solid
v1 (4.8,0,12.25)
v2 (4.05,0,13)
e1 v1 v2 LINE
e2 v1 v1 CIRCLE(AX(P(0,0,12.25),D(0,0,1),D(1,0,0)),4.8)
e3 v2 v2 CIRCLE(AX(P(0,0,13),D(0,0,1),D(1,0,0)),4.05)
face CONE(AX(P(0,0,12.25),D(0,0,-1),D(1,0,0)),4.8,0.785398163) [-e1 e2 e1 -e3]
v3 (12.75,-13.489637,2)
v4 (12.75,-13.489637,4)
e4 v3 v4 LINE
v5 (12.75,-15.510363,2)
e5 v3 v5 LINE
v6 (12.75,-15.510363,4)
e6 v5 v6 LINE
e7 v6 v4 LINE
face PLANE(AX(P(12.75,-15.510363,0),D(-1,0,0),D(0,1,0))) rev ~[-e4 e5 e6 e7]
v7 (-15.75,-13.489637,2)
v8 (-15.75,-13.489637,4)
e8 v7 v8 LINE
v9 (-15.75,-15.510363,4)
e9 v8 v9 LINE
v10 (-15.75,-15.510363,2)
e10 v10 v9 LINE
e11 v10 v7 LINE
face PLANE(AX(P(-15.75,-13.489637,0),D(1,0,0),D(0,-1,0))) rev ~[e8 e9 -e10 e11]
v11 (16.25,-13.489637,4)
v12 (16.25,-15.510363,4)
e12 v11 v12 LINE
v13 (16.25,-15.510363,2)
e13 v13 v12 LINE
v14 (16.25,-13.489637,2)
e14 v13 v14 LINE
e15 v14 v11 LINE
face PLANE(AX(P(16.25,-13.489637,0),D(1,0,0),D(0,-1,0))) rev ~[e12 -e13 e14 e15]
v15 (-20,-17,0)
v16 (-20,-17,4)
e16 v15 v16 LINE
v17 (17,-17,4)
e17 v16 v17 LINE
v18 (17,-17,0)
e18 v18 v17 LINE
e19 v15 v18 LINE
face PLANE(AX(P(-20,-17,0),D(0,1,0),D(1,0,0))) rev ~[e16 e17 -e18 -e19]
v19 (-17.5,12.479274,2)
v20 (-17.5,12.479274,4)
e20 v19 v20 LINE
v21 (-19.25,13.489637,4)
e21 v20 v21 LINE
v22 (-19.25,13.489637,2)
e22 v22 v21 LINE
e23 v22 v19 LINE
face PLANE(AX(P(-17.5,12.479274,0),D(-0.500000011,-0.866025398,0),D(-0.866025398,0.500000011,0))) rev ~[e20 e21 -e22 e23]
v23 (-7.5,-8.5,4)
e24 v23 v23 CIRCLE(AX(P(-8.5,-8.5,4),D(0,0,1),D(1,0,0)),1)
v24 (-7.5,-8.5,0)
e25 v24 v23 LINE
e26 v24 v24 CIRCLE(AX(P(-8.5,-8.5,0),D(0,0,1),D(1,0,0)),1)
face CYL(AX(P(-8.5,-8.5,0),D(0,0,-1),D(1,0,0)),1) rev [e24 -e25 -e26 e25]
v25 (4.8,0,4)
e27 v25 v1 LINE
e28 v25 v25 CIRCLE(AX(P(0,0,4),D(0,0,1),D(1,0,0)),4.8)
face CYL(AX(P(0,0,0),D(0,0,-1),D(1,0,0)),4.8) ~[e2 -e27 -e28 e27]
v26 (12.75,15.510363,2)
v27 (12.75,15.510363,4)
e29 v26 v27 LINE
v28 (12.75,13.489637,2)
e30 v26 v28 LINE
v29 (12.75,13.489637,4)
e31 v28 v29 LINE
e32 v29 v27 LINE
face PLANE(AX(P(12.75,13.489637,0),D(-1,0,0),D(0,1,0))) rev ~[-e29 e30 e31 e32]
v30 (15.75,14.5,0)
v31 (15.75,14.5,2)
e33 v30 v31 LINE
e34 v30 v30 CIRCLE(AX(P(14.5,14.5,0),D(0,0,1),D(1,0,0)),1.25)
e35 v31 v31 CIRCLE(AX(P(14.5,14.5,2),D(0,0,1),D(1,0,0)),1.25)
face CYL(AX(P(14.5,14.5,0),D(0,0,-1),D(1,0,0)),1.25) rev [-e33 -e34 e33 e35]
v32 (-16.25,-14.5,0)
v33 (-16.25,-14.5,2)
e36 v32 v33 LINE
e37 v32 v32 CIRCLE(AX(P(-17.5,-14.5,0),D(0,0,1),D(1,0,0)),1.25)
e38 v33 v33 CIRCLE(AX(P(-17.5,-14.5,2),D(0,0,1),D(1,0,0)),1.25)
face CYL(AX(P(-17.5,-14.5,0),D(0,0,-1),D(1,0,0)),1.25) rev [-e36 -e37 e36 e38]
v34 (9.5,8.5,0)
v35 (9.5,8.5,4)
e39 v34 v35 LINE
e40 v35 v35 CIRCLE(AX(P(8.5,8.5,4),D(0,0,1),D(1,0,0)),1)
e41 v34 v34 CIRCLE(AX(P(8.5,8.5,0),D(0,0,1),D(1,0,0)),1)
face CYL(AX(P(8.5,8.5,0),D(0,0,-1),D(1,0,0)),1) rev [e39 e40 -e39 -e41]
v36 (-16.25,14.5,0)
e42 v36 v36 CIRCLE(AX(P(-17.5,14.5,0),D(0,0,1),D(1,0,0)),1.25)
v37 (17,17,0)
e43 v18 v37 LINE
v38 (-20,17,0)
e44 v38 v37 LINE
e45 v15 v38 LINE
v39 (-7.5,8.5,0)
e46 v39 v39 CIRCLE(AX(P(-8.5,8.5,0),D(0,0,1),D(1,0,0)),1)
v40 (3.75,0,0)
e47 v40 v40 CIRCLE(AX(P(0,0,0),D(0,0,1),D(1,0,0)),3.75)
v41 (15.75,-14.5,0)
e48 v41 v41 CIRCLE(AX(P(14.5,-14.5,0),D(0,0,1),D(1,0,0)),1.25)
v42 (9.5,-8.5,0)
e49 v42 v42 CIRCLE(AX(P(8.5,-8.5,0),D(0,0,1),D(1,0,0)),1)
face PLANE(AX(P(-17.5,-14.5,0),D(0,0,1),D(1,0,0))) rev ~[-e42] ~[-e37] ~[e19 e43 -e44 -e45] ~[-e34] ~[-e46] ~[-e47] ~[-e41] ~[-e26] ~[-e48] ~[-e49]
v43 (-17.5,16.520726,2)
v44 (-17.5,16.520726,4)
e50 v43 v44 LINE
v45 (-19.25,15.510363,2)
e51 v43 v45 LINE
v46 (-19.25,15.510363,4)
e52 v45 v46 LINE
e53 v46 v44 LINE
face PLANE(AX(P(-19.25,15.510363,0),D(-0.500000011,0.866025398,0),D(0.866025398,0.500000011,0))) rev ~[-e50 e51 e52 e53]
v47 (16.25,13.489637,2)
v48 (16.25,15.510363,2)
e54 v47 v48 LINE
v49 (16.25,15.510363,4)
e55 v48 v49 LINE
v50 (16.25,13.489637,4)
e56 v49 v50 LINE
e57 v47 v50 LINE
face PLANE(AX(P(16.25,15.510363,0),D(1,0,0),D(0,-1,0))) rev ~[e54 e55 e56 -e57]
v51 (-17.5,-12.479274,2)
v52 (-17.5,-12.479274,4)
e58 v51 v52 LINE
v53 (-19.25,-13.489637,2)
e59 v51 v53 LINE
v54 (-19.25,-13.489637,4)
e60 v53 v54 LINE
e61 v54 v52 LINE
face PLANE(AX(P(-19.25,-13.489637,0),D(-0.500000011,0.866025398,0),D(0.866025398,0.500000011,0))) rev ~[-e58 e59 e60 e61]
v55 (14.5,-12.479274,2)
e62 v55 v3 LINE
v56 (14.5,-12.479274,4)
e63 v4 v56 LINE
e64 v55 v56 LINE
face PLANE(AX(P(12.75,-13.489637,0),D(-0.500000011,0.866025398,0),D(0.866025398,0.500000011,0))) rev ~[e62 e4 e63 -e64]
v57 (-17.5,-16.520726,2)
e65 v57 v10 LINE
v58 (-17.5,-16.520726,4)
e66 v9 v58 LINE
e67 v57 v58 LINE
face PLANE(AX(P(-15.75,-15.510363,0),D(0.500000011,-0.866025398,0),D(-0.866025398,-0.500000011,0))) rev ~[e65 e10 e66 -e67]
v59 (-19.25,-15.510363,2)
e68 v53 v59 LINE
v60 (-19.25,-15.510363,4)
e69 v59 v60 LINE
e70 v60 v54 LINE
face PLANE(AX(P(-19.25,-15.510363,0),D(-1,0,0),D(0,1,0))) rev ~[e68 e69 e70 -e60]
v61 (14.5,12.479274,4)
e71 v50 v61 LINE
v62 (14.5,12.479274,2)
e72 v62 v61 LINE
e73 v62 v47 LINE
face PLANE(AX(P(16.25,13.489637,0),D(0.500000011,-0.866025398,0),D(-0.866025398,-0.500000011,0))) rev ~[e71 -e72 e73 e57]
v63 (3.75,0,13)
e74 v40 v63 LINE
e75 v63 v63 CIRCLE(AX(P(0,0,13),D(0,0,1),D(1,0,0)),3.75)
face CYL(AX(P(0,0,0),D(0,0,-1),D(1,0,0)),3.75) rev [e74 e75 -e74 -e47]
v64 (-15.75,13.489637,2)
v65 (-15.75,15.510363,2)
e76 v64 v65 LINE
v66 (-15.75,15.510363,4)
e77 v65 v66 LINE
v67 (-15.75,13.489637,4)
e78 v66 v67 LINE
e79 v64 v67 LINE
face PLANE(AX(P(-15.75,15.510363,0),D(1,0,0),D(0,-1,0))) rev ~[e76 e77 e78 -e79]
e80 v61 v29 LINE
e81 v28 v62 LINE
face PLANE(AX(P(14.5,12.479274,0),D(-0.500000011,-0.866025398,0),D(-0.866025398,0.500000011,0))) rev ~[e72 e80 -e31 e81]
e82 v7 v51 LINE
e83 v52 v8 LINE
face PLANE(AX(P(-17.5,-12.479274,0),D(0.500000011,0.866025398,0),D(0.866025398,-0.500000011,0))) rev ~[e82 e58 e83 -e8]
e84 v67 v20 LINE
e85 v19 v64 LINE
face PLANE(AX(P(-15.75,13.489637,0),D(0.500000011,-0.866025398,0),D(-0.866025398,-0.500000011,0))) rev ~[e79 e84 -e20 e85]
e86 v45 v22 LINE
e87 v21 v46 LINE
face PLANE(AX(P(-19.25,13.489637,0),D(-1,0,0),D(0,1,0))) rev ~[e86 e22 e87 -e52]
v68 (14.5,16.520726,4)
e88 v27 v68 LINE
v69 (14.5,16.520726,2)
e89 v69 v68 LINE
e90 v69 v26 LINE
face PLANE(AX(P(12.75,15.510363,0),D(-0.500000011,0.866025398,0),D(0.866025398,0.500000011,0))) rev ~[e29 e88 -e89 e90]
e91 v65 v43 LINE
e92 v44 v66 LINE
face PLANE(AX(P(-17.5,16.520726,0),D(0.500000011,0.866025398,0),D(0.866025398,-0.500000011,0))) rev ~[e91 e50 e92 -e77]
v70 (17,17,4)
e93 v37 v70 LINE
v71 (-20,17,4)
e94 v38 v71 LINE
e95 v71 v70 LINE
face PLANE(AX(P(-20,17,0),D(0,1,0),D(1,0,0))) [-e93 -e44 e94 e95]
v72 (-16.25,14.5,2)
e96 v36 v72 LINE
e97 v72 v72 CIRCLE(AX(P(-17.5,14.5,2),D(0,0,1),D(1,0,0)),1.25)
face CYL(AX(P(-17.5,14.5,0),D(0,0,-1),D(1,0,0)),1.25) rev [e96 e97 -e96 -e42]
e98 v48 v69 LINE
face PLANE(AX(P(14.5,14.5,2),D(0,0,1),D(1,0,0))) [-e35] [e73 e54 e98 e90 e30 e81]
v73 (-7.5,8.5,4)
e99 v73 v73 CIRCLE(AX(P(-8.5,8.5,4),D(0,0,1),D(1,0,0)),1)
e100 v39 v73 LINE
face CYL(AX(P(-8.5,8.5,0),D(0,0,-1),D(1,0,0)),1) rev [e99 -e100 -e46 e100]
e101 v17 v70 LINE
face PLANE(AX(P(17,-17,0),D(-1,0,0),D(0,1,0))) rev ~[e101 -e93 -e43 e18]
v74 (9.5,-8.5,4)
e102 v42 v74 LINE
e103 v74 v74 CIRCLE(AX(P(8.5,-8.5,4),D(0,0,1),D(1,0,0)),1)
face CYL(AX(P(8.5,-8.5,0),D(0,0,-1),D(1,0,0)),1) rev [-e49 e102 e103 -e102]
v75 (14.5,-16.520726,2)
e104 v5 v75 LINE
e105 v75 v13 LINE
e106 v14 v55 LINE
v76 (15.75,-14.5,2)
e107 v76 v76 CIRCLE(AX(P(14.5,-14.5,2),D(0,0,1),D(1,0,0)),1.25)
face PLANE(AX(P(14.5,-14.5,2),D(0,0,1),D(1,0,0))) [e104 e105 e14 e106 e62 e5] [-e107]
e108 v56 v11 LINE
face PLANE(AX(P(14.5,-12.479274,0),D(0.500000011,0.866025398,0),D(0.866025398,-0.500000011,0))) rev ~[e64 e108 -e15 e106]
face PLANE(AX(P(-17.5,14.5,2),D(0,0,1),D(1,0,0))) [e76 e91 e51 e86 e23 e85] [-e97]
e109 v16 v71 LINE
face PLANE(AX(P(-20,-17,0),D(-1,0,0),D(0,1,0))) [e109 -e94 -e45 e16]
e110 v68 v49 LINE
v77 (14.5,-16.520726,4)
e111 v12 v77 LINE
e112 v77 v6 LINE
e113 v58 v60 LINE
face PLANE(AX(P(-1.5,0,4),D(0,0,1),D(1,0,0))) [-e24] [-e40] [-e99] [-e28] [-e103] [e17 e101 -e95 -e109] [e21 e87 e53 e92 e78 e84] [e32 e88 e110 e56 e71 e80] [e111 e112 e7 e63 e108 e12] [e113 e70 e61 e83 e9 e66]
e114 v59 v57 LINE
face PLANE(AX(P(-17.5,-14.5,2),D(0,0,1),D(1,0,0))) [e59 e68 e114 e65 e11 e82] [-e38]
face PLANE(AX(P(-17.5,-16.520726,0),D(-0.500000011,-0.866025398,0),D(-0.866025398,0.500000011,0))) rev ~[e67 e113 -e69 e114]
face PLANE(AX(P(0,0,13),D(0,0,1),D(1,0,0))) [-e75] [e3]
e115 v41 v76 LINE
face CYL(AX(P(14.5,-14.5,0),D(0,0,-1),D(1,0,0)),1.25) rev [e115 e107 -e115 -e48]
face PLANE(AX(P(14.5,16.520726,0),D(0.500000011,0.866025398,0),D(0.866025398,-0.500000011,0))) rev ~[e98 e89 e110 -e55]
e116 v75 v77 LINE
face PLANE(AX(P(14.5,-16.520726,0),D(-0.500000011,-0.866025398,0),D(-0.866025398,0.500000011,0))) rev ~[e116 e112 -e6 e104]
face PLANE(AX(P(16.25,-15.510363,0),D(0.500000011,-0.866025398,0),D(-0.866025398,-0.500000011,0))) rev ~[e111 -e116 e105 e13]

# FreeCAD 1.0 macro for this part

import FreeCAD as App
import Part
import Sketcher
Q = App.Units.Quantity


def edges_at(feature, points):
    """Names of the edges that pass closest to the given points."""
    edges = feature.Shape.Edges
    near = lambda p: min(range(len(edges)), key=lambda i: edges[i].distToShape(Part.Vertex(*p))[0])
    return sorted({f"Edge{near(p) + 1}" for p in points})


def add_polygon(sketch, points):
    """Adds a closed chain of lines whose ends are joined by coincident constraints."""
    first, n = sketch.GeometryCount, len(points)
    for a, b in zip(points, points[1:] + points[:1]):
        sketch.addGeometry(Part.LineSegment(App.Vector(*a, 0), App.Vector(*b, 0)), False)
    for i in range(n):
        sketch.addConstraint(Sketcher.Constraint("Coincident", first + i, 2, first + (i + 1) % n, 1))

doc = App.newDocument("Part")
body = doc.addObject("PartDesign::Body", "Body")

# Sketch on XY plane
sketch1 = body.newObject("Sketcher::SketchObject", "Sketch")
sketch1.AttachmentSupport = (doc.getObject("XY_Plane"), [""])
sketch1.MapMode = "FlatFace"
add_polygon(sketch1, [(-20, 17), (-20, -17), (17, -17), (17, 17)])  # lines 0-3
add_polygon(sketch1, [(-17.5, -16.520726), (-19.25, -15.510363), (-19.25, -13.489637), (-17.5, -12.479274), (-15.75, -13.489637), (-15.75, -15.510363)])  # lines 4-9
sketch1.addGeometry(Part.Circle(App.Vector(-8.5, -8.5, 0), App.Vector(0, 0, 1), 1), False)  # 10
add_polygon(sketch1, [(16.25, -15.510363), (14.5, -16.520726), (12.75, -15.510363), (12.75, -13.489637), (14.5, -12.479274), (16.25, -13.489637)])  # lines 11-16
sketch1.addGeometry(Part.Circle(App.Vector(8.5, -8.5, 0), App.Vector(0, 0, 1), 1), False)  # 17
add_polygon(sketch1, [(-19.25, 13.489637), (-19.25, 15.510363), (-17.5, 16.520726), (-15.75, 15.510363), (-15.75, 13.489637), (-17.5, 12.479274)])  # lines 18-23
sketch1.addGeometry(Part.Circle(App.Vector(-8.5, 8.5, 0), App.Vector(0, 0, 1), 1), False)  # 24
sketch1.addGeometry(Part.Circle(App.Vector(0, 0, 0), App.Vector(0, 0, 1), 4.8), False)  # 25
sketch1.addGeometry(Part.Circle(App.Vector(8.5, 8.5, 0), App.Vector(0, 0, 1), 1), False)  # 26
add_polygon(sketch1, [(16.25, 13.489637), (14.5, 12.479274), (12.75, 13.489637), (12.75, 15.510363), (14.5, 16.520726), (16.25, 15.510363)])  # lines 27-32
sketch1.addConstraint([
    Sketcher.Constraint("Vertical", 0),
    Sketcher.Constraint("Horizontal", 1),
    Sketcher.Constraint("Vertical", 2),
    Sketcher.Constraint("Horizontal", 3),
    Sketcher.Constraint("Vertical", 5),
    Sketcher.Constraint("Vertical", 8),
    Sketcher.Constraint("Vertical", 13),
    Sketcher.Constraint("Vertical", 16),
    Sketcher.Constraint("Vertical", 18),
    Sketcher.Constraint("Vertical", 21),
    Sketcher.Constraint("Vertical", 29),
    Sketcher.Constraint("Vertical", 32),
    Sketcher.Constraint("Coincident", 25, 3, -1, 1),
    Sketcher.Constraint("Equal", 10, 17),
    Sketcher.Constraint("Equal", 17, 24),
    Sketcher.Constraint("Equal", 24, 26),
    Sketcher.Constraint("Symmetric", 17, 3, 24, 3, -1, 1),
    Sketcher.Constraint("Symmetric", 10, 3, 26, 3, -1, 1),
    Sketcher.Constraint("Symmetric", 10, 3, 17, 3, -2),
    Sketcher.Constraint("Symmetric", 4, 2, 18, 2, -1),
    Sketcher.Constraint("Symmetric", 9, 2, 19, 2, -1),
    Sketcher.Constraint("Symmetric", 8, 2, 20, 2, -1),
    Sketcher.Constraint("Symmetric", 6, 2, 22, 2, -1),
    Sketcher.Constraint("Symmetric", 14, 2, 27, 2, -1),
    Sketcher.Constraint("Symmetric", 13, 2, 28, 2, -1),
    Sketcher.Constraint("Symmetric", 11, 2, 30, 2, -1),
    Sketcher.Constraint("Symmetric", 16, 2, 31, 2, -1),
    Sketcher.Constraint("Parallel", 4, 7),
    Sketcher.Constraint("Parallel", 6, 9),
    Sketcher.Constraint("Parallel", 9, 11),
    Sketcher.Constraint("Parallel", 7, 12),
    Sketcher.Constraint("Parallel", 11, 14),
    Sketcher.Constraint("Parallel", 12, 15),
    Sketcher.Constraint("Parallel", 14, 19),
    Sketcher.Constraint("Parallel", 19, 22),
    Sketcher.Constraint("Parallel", 20, 23),
    Sketcher.Constraint("Parallel", 22, 27),
    Sketcher.Constraint("Parallel", 27, 30),
    Sketcher.Constraint("Horizontal", 5, 2, 7, 2),
    Sketcher.Constraint("Horizontal", 4, 2, 8, 2),
    Sketcher.Constraint("Horizontal", 9, 2, 11, 2),
    Sketcher.Constraint("Horizontal", 8, 2, 12, 2),
    Sketcher.Constraint("Horizontal", 7, 2, 13, 2),
    Sketcher.Constraint("Horizontal", 6, 2, 14, 2),
    Sketcher.Constraint("Horizontal", 13, 2, 15, 2),
    Sketcher.Constraint("Diameter", 10, Q("2 mm")),
    Sketcher.Constraint("Diameter", 25, Q("9.6 mm")),
    Sketcher.Constraint("DistanceX", 1, 1, 1, 2, Q("37 mm")),
    Sketcher.Constraint("DistanceY", 0, 2, 0, 1, Q("34 mm")),
    Sketcher.Constraint("Angle", 4, Q("149.999999 deg")),
    Sketcher.Constraint("DistanceX", 0, 2, -1, 1, Q("20 mm")),
    Sketcher.Constraint("DistanceY", 0, 2, -1, 1, Q("17 mm")),
    Sketcher.Constraint("DistanceX", 10, 3, 17, 3, Q("17 mm")),
    Sketcher.Constraint("DistanceY", 10, 3, 24, 3, Q("17 mm")),
    Sketcher.Constraint("DistanceX", 6, 2, 10, 3, Q("9 mm")),
    Sketcher.Constraint("DistanceX", 17, 3, 11, 2, Q("6 mm")),
    Sketcher.Constraint("DistanceX", 5, 2, 7, 2, Q("3.5 mm")),
    Sketcher.Constraint("DistanceY", 5, 1, 5, 2, Q("2.020726 mm")),
    Sketcher.Constraint("DistanceY", 4, 2, -1, 1, Q("15.510363 mm")),
])
pad1 = body.newObject("PartDesign::Pad", "Pad")
pad1.Profile = sketch1
pad1.Length = 4

# Sketch on XY plane
sketch2 = body.newObject("Sketcher::SketchObject", "Sketch001")
sketch2.AttachmentSupport = (doc.getObject("XY_Plane"), [""])
sketch2.MapMode = "FlatFace"
sketch2.addGeometry([
    Part.Circle(App.Vector(0, 0, 0), App.Vector(0, 0, 1), 4.8),
    Part.Circle(App.Vector(0, 0, 0), App.Vector(0, 0, 1), 3.75),
], False)
sketch2.addConstraint([
    Sketcher.Constraint("Coincident", 0, 3, -1, 1),
    Sketcher.Constraint("Coincident", 1, 3, -1, 1),
    Sketcher.Constraint("Diameter", 0, Q("9.6 mm")),
    Sketcher.Constraint("Diameter", 1, Q("7.5 mm")),
])
pad2 = body.newObject("PartDesign::Pad", "Pad001")
pad2.Profile = sketch2
pad2.Length = 13
doc.recompute()

chamfer = body.newObject("PartDesign::Chamfer", "Chamfer")
chamfer.Base = (pad2, edges_at(pad2, [(-4.8, 0, 13)]))
chamfer.Size = 0.75

# Sketch on XY plane
sketch3 = body.newObject("Sketcher::SketchObject", "Sketch002")
sketch3.AttachmentSupport = (doc.getObject("XY_Plane"), [""])
sketch3.MapMode = "FlatFace"
add_polygon(sketch3, [(-17.5, -12.479274), (-19.25, -13.489637), (-19.25, -15.510363), (-17.5, -16.520726), (-15.75, -15.510363), (-15.75, -13.489637)])  # lines 0-5
sketch3.addGeometry(Part.Circle(App.Vector(-17.5, -14.5, 0), App.Vector(0, 0, 1), 1.25), False)  # 6
add_polygon(sketch3, [(12.75, -13.489637), (12.75, -15.510363), (14.5, -16.520726), (16.25, -15.510363), (16.25, -13.489637), (14.5, -12.479274)])  # lines 7-12
sketch3.addGeometry(Part.Circle(App.Vector(14.5, -14.5, 0), App.Vector(0, 0, 1), 1.25), False)  # 13
add_polygon(sketch3, [(12.75, 15.510363), (12.75, 13.489637), (14.5, 12.479274), (16.25, 13.489637), (16.25, 15.510363), (14.5, 16.520726)])  # lines 14-19
sketch3.addGeometry(Part.Circle(App.Vector(14.5, 14.5, 0), App.Vector(0, 0, 1), 1.25), False)  # 20
add_polygon(sketch3, [(-15.75, 15.510363), (-17.5, 16.520726), (-19.25, 15.510363), (-19.25, 13.489637), (-17.5, 12.479274), (-15.75, 13.489637)])  # lines 21-26
sketch3.addGeometry(Part.Circle(App.Vector(-17.5, 14.5, 0), App.Vector(0, 0, 1), 1.25), False)  # 27
sketch3.addConstraint([
    Sketcher.Constraint("Vertical", 1),
    Sketcher.Constraint("Vertical", 4),
    Sketcher.Constraint("Vertical", 7),
    Sketcher.Constraint("Vertical", 10),
    Sketcher.Constraint("Vertical", 14),
    Sketcher.Constraint("Vertical", 17),
    Sketcher.Constraint("Vertical", 23),
    Sketcher.Constraint("Vertical", 26),
    Sketcher.Constraint("Equal", 6, 13),
    Sketcher.Constraint("Equal", 13, 20),
    Sketcher.Constraint("Equal", 20, 27),
    Sketcher.Constraint("Symmetric", 13, 3, 20, 3, -1),
    Sketcher.Constraint("Symmetric", 6, 3, 27, 3, -1),
    Sketcher.Constraint("Symmetric", 12, 2, 14, 2, -1),
    Sketcher.Constraint("Symmetric", 11, 2, 15, 2, -1),
    Sketcher.Constraint("Symmetric", 10, 2, 16, 2, -1),
    Sketcher.Constraint("Symmetric", 8, 2, 18, 2, -1),
    Sketcher.Constraint("Symmetric", 2, 2, 21, 2, -1),
    Sketcher.Constraint("Symmetric", 1, 2, 22, 2, -1),
    Sketcher.Constraint("Symmetric", 5, 2, 24, 2, -1),
    Sketcher.Constraint("Symmetric", 4, 2, 25, 2, -1),
    Sketcher.Constraint("Parallel", 0, 3),
    Sketcher.Constraint("Parallel", 2, 5),
    Sketcher.Constraint("Parallel", 5, 8),
    Sketcher.Constraint("Parallel", 3, 9),
    Sketcher.Constraint("Parallel", 8, 11),
    Sketcher.Constraint("Parallel", 9, 12),
    Sketcher.Constraint("Parallel", 11, 15),
    Sketcher.Constraint("Parallel", 15, 18),
    Sketcher.Constraint("Parallel", 16, 19),
    Sketcher.Constraint("Parallel", 18, 21),
    Sketcher.Constraint("Parallel", 21, 24),
    Sketcher.Constraint("Horizontal", 6, 3, 13, 3),
    Sketcher.Constraint("Horizontal", 1, 2, 3, 2),
    Sketcher.Constraint("Horizontal", 0, 2, 4, 2),
    Sketcher.Constraint("Horizontal", 3, 2, 7, 2),
    Sketcher.Constraint("Horizontal", 2, 2, 8, 2),
    Sketcher.Constraint("Horizontal", 7, 2, 9, 2),
    Sketcher.Constraint("Horizontal", 4, 2, 10, 2),
    Sketcher.Constraint("Horizontal", 5, 2, 11, 2),
    Sketcher.Constraint("Vertical", 27, 3, 2, 2),
    Sketcher.Constraint("Vertical", 20, 3, 8, 2),
    Sketcher.Constraint("Diameter", 6, Q("2.5 mm")),
    Sketcher.Constraint("Angle", 0, Q("-149.999999 deg")),
    Sketcher.Constraint("DistanceX", 6, 3, 13, 3, Q("32 mm")),
    Sketcher.Constraint("DistanceY", 13, 3, 20, 3, Q("29 mm")),
    Sketcher.Constraint("DistanceY", 5, 2, 21, 2, Q("29 mm")),
    Sketcher.Constraint("DistanceX", 6, 3, -1, 1, Q("17.5 mm")),
    Sketcher.Constraint("DistanceX", 1, 2, 3, 2, Q("3.5 mm")),
    Sketcher.Constraint("DistanceY", 1, 2, 1, 1, Q("2.020726 mm")),
])
pad3 = body.newObject("PartDesign::Pad", "Pad002")
pad3.Profile = sketch3
pad3.Length = 2

doc.recompute()
